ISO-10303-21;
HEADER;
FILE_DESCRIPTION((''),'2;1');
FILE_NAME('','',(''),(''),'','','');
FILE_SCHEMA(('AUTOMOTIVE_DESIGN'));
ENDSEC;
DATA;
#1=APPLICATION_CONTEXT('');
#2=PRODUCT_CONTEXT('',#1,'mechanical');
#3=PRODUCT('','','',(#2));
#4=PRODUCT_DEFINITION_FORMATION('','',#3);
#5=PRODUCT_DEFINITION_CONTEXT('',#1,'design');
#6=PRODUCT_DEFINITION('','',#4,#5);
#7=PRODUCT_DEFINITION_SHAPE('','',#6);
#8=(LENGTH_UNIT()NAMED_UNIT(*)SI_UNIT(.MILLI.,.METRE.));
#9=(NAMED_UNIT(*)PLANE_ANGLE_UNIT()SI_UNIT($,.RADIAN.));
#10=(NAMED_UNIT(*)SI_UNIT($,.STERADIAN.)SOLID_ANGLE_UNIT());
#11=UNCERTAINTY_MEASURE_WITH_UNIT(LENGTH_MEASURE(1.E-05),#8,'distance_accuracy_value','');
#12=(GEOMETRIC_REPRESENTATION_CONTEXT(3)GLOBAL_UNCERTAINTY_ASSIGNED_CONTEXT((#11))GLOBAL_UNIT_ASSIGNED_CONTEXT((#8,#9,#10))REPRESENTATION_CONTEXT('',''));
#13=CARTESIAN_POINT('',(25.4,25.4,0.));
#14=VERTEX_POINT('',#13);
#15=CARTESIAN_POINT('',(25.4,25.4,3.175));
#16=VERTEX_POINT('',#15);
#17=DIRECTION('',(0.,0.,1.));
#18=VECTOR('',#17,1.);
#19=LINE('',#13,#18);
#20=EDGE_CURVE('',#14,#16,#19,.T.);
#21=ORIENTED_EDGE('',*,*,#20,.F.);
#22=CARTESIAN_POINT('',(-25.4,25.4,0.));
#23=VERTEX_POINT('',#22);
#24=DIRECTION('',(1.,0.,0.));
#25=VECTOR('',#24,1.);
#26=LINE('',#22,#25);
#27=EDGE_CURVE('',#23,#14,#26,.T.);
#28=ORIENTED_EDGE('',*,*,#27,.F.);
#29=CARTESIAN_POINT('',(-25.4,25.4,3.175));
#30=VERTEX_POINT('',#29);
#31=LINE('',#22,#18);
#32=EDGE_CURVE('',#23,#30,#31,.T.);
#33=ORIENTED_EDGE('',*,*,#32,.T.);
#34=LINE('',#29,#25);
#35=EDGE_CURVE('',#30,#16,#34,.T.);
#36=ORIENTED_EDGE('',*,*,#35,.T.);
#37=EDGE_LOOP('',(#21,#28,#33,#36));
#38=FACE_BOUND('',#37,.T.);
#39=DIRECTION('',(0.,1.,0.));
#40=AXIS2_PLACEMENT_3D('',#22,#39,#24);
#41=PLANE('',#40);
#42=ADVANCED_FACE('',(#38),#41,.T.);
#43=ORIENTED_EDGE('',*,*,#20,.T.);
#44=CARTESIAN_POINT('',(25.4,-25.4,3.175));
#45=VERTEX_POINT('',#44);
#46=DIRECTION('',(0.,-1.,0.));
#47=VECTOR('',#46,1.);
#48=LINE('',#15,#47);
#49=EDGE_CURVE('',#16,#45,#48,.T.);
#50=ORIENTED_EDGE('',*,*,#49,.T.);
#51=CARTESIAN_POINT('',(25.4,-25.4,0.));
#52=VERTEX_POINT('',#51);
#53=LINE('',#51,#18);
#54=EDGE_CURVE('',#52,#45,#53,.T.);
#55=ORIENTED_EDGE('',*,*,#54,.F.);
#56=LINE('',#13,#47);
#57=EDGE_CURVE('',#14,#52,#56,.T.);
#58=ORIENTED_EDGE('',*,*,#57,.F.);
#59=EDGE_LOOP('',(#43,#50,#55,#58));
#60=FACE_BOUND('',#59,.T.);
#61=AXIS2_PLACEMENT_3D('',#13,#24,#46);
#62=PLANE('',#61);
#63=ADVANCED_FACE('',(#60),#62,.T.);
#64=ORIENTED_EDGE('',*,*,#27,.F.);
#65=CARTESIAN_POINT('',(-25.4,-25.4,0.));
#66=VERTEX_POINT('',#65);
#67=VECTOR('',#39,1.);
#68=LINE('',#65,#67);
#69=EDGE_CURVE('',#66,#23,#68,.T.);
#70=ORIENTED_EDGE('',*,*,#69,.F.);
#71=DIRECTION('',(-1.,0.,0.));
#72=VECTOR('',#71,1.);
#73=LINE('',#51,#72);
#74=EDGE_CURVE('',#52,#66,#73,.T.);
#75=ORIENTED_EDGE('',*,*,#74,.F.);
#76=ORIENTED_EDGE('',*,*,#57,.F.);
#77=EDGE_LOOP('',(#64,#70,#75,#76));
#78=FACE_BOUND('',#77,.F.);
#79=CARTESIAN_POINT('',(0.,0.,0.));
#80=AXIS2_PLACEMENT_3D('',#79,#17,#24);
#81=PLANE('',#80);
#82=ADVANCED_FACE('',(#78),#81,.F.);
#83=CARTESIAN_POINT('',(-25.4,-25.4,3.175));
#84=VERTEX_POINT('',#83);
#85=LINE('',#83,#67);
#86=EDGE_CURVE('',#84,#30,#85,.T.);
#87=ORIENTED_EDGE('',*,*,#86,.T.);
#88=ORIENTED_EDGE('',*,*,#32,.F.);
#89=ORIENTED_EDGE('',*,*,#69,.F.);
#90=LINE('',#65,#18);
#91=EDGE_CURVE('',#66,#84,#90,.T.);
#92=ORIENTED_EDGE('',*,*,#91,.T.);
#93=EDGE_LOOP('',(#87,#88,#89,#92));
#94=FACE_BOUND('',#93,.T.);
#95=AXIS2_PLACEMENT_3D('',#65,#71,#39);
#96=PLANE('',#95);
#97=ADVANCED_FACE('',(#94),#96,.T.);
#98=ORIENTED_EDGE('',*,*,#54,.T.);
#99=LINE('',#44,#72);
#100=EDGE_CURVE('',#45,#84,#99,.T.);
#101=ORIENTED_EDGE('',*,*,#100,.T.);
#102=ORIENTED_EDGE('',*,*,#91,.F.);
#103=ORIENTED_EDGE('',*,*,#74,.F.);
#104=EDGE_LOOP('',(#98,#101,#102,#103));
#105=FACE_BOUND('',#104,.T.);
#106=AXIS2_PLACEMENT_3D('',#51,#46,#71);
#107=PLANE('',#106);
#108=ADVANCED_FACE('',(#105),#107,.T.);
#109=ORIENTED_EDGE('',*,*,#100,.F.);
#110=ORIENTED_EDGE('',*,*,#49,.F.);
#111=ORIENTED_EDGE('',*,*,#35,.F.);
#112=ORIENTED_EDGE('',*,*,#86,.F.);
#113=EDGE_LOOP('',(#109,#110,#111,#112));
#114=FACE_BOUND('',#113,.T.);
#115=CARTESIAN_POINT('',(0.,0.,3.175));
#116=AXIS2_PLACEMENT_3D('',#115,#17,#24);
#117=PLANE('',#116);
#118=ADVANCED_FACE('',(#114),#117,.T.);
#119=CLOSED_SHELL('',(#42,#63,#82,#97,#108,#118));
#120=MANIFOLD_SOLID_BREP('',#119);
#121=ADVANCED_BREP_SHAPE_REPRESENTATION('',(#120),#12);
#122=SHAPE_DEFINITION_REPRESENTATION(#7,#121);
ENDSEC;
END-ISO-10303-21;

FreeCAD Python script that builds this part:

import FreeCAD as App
import Part
import Sketcher
from FreeCAD import Vector
Q = App.Units.Quantity

doc = App.newDocument("Part")
body = doc.addObject("PartDesign::Body", "Body")

# Sketch on XY plane
sketch1 = body.newObject("Sketcher::SketchObject", "Sketch")
sketch1.AttachmentSupport = (doc.getObject("XY_Plane"), [""])
sketch1.MapMode = "FlatFace"
sketch1.addGeometry([
    Part.LineSegment(Vector(25, 25, 0), Vector(-25, 25, 0)),
    Part.LineSegment(Vector(-25, 25, 0), Vector(-25, -25, 0)),
    Part.LineSegment(Vector(-25, -25, 0), Vector(25, -25, 0)),
    Part.LineSegment(Vector(25, -25, 0), Vector(25, 25, 0)),
], False)
sketch1.addConstraint([
    Sketcher.Constraint("Coincident", 0, 2, 1, 1),
    Sketcher.Constraint("Coincident", 1, 2, 2, 1),
    Sketcher.Constraint("Coincident", 2, 2, 3, 1),
    Sketcher.Constraint("Coincident", 3, 2, 0, 1),
    Sketcher.Constraint("Horizontal", 0),
    Sketcher.Constraint("Vertical", 1),
    Sketcher.Constraint("Horizontal", 2),
    Sketcher.Constraint("Vertical", 3),
    Sketcher.Constraint("Symmetric", 0, 2, 2, 2, -1, 1),
    Sketcher.Constraint("Equal", 2, 1),
    Sketcher.Constraint("DistanceX", 0, 2, 0, 1, Q("2 in")),
])
pad1 = body.newObject("PartDesign::Pad", "Pad")
pad1.Profile = sketch1
pad1.Length = Q("0.125 in")

doc.recompute()
